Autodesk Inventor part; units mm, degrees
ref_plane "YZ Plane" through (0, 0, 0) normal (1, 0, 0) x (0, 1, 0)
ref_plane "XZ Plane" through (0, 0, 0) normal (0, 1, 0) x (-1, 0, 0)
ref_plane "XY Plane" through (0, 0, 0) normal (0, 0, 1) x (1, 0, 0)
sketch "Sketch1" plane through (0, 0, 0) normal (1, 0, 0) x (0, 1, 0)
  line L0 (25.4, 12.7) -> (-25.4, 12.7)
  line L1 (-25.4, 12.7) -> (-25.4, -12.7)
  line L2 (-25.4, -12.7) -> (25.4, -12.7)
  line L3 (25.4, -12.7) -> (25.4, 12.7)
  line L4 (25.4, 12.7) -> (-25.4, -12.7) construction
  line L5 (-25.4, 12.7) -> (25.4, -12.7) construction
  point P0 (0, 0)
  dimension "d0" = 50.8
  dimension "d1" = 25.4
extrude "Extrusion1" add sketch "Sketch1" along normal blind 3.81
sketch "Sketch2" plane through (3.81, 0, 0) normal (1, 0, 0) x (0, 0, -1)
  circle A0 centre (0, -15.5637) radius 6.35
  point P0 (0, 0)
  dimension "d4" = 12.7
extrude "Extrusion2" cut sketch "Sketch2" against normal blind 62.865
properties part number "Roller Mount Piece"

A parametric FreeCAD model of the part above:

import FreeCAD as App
import Part
import Sketcher

V = App.Vector
Q = App.Units.Quantity


def add_polygon(sketch, points):
    """Adds a closed chain of lines whose ends are joined by coincident constraints."""
    first, n = sketch.GeometryCount, len(points)
    for a, b in zip(points, points[1:] + points[:1]):
        sketch.addGeometry(Part.LineSegment(App.Vector(*a, 0), App.Vector(*b, 0)), False)
    for i in range(n):
        sketch.addConstraint(Sketcher.Constraint("Coincident", first + i, 2, first + (i + 1) % n, 1))

doc = App.newDocument("Part")
body = doc.addObject("PartDesign::Body", "Body")

sketch1 = body.newObject("Sketcher::SketchObject", "Sketch")
sketch1.AttachmentSupport = (doc.getObject("YZ_Plane"), [""])
sketch1.MapMode = "FlatFace"
add_polygon(sketch1, [(25.4, -12.7), (25.4, 12.7), (-25.4, 12.7), (-25.4, -12.7)])
sketch1.addConstraint([
    Sketcher.Constraint("Vertical", 0),
    Sketcher.Constraint("Horizontal", 1),
    Sketcher.Constraint("Vertical", 2),
    Sketcher.Constraint("Horizontal", 3),
    Sketcher.Constraint("Symmetric", 0, 2, 2, 2, -1, 1),
    Sketcher.Constraint("DistanceX", 1, 2, 1, 1, Q("2 in")),
    Sketcher.Constraint("DistanceY", 0, 1, 0, 2, Q("1 in")),
])
pad1 = body.newObject("PartDesign::Pad", "Pad")
pad1.Profile = sketch1
pad1.Length = Q("0.15 in")

sketch2 = body.newObject("Sketcher::SketchObject", "Sketch001")
sketch2.AttachmentSupport = (doc.getObject("YZ_Plane"), [""])
sketch2.MapMode = "FlatFace"
sketch2.AttachmentOffset = App.Placement(V(0, 0, 0.15 * 25.4), App.Rotation())
sketch2.addGeometry(Part.Circle(V(-15.5637, 0, 0), V(0, 0, 1), 6.35), False)
sketch2.addConstraint([
    Sketcher.Constraint("PointOnObject", 0, 3, -1),
    Sketcher.Constraint("Diameter", 0, Q("0.5 in")),
    Sketcher.Constraint("DistanceX", 0, 3, -1, 1, Q("15.5637 mm")),
])
pocket1 = body.newObject("PartDesign::Pocket", "Pocket")
pocket1.Profile = sketch2
pocket1.Length = Q("2.475 in")

doc.recompute()
